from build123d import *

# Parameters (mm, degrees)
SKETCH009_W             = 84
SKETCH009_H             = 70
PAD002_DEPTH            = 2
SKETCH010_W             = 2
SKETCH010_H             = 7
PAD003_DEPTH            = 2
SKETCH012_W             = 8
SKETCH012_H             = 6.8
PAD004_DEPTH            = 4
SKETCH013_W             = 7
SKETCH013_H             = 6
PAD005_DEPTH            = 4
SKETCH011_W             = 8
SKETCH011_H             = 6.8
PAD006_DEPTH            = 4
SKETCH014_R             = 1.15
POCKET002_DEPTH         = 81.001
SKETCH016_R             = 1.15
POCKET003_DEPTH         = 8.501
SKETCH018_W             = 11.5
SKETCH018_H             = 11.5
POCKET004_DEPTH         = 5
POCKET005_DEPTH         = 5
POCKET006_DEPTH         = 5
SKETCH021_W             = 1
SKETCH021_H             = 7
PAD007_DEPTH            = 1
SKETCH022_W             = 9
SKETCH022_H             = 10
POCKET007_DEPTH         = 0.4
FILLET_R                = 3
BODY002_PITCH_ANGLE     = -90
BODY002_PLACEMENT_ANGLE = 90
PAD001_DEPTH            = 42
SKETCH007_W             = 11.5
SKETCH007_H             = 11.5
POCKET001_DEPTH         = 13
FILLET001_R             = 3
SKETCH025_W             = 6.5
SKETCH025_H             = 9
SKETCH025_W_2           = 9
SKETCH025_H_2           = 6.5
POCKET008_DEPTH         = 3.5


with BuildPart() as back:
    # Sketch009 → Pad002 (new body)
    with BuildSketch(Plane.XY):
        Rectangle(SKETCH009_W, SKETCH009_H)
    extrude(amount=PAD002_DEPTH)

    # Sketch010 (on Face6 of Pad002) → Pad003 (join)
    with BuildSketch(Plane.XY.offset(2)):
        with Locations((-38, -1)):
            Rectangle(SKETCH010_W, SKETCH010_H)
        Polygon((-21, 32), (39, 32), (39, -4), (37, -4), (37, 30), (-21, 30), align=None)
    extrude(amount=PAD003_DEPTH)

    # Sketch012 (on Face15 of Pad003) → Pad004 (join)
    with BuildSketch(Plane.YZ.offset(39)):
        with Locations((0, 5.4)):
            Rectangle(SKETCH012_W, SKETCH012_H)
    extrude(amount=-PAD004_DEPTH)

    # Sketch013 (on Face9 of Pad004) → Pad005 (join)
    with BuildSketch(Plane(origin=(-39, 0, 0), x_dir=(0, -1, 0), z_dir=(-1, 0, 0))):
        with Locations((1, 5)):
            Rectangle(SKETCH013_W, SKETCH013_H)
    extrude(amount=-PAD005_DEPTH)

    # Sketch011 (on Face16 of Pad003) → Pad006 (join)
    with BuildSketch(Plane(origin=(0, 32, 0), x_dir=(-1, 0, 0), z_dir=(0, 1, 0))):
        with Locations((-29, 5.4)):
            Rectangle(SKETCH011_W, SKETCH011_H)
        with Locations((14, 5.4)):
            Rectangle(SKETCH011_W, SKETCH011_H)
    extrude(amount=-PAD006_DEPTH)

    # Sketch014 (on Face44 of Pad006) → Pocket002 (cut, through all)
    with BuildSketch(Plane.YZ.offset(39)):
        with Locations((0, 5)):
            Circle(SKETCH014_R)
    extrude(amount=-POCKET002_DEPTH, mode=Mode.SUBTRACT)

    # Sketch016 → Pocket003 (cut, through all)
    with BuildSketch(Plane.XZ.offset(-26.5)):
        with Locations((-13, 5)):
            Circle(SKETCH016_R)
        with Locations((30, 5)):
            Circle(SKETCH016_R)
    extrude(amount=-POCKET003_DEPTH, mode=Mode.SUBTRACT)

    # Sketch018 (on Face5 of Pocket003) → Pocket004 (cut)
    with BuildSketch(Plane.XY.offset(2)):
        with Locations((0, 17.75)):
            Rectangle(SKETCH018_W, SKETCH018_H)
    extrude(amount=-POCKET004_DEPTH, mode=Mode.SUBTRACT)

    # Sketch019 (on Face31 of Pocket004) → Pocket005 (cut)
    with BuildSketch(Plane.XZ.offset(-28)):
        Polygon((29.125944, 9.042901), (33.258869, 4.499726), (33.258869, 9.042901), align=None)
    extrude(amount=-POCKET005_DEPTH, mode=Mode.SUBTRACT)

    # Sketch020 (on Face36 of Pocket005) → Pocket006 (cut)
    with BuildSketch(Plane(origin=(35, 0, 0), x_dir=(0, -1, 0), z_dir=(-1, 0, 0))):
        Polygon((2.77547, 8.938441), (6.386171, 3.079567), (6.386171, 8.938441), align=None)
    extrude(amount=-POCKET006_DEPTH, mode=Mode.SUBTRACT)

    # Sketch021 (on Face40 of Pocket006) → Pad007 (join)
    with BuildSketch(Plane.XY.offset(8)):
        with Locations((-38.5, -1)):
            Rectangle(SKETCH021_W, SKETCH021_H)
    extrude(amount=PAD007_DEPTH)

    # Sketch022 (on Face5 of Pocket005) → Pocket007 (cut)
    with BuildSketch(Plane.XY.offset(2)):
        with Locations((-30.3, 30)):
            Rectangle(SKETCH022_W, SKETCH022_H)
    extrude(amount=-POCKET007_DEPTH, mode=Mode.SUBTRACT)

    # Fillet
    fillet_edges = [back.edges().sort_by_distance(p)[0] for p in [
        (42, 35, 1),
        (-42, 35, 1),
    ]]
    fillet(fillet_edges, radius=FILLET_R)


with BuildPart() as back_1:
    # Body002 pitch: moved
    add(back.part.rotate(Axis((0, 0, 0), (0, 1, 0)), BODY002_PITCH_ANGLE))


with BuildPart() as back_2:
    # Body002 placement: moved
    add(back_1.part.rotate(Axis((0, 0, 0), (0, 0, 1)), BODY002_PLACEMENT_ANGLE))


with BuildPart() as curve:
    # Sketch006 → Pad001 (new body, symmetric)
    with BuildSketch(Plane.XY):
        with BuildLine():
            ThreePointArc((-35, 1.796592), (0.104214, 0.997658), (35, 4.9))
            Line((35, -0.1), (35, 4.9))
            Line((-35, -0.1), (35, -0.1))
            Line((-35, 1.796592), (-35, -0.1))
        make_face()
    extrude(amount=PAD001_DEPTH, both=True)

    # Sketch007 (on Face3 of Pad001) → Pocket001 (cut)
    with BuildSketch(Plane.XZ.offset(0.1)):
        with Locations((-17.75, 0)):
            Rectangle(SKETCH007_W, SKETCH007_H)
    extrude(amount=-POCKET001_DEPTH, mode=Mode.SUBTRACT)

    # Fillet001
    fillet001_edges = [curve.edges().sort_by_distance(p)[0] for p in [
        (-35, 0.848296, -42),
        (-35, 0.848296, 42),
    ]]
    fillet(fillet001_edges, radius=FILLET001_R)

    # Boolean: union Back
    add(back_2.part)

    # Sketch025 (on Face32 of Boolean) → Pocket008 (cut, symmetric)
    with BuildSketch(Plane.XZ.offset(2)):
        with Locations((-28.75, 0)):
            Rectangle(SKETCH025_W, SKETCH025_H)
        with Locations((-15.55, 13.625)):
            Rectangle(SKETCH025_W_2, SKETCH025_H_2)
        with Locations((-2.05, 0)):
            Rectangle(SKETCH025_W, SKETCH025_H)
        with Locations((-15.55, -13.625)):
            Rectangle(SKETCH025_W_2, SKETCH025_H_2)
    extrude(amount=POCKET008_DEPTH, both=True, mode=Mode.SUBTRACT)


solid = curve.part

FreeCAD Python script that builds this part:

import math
import FreeCAD as App
import Part
import Sketcher
Q = App.Units.Quantity


def edges_at(feature, points):
    """Names of the edges that pass closest to the given points."""
    edges = feature.Shape.Edges
    near = lambda p: min(range(len(edges)), key=lambda i: edges[i].distToShape(Part.Vertex(*p))[0])
    return sorted({f"Edge{near(p) + 1}" for p in points})


def add_polygon(sketch, points):
    """Adds a closed chain of lines whose ends are joined by coincident constraints."""
    first, n = sketch.GeometryCount, len(points)
    for a, b in zip(points, points[1:] + points[:1]):
        sketch.addGeometry(Part.LineSegment(App.Vector(*a, 0), App.Vector(*b, 0)), False)
    for i in range(n):
        sketch.addConstraint(Sketcher.Constraint("Coincident", first + i, 2, first + (i + 1) % n, 1))

doc = App.newDocument("Part")
body = doc.addObject("PartDesign::Body", "Body")

# Sketch on XY plane
sketch1 = body.newObject("Sketcher::SketchObject", "Sketch")
sketch1.AttachmentSupport = (doc.getObject("XY_Plane"), [""])
sketch1.MapMode = "FlatFace"
add_polygon(sketch1, [(-42, 35), (-42, -35), (42, -35), (42, 35)])  # lines 0-3
sketch1.addConstraint([
    Sketcher.Constraint("Vertical", 0),
    Sketcher.Constraint("Horizontal", 1),
    Sketcher.Constraint("Vertical", 2),
    Sketcher.Constraint("Horizontal", 3),
    Sketcher.Constraint("Symmetric", 0, 2, 2, 2, -1, 1),
    Sketcher.Constraint("DistanceX", 1, 1, 1, 2, Q("84 mm")),
    Sketcher.Constraint("DistanceY", 0, 2, 0, 1, Q("70 mm")),
])
pad1 = body.newObject("PartDesign::Pad", "Pad")
pad1.Profile = sketch1
pad1.Length = 2

# Sketch on XY plane
sketch2 = body.newObject("Sketcher::SketchObject", "Sketch001")
sketch2.AttachmentSupport = (doc.getObject("XY_Plane"), [""])
sketch2.MapMode = "FlatFace"
sketch2.AttachmentOffset = App.Placement(App.Vector(0, 0, 2), App.Rotation())
add_polygon(sketch2, [(-39, 2.5), (-39, -4.5), (-37, -4.5), (-37, 2.5)])  # lines 0-3
add_polygon(sketch2, [(39, 32), (-21, 32), (-21, 30), (37, 30), (37, -4), (39, -4)])  # lines 4-9
sketch2.addConstraint([
    Sketcher.Constraint("Vertical", 0),
    Sketcher.Constraint("Horizontal", 1),
    Sketcher.Constraint("Vertical", 2),
    Sketcher.Constraint("Horizontal", 3),
    Sketcher.Constraint("Horizontal", 4),
    Sketcher.Constraint("Vertical", 5),
    Sketcher.Constraint("Horizontal", 6),
    Sketcher.Constraint("Vertical", 7),
    Sketcher.Constraint("Horizontal", 8),
    Sketcher.Constraint("Vertical", 9),
    Sketcher.Constraint("Equal", 3, 8),
    Sketcher.Constraint("Equal", 8, 5),
    Sketcher.Constraint("DistanceX", 1, 1, 1, 2, Q("2 mm")),
    Sketcher.Constraint("DistanceX", 4, 2, 4, 1, Q("60 mm")),
    Sketcher.Constraint("DistanceY", 0, 2, 0, 1, Q("7 mm")),
    Sketcher.Constraint("DistanceY", 7, 2, 7, 1, Q("34 mm")),
    Sketcher.Constraint("DistanceX", 0, 2, -1, 1, Q("39 mm")),
    Sketcher.Constraint("DistanceX", 4, 2, -1, 1, Q("21 mm")),
    Sketcher.Constraint("DistanceY", -1, 1, 4, 2, Q("32 mm")),
    Sketcher.Constraint("DistanceY", 0, 2, -1, 1, Q("4.5 mm")),
])
pad2 = body.newObject("PartDesign::Pad", "Pad001")
pad2.Profile = sketch2
pad2.Length = 2

# Sketch on YZ plane
sketch3 = body.newObject("Sketcher::SketchObject", "Sketch002")
sketch3.AttachmentSupport = (doc.getObject("YZ_Plane"), [""])
sketch3.MapMode = "FlatFace"
sketch3.AttachmentOffset = App.Placement(App.Vector(0, 0, 39), App.Rotation())
add_polygon(sketch3, [(-4, 8.8), (-4, 2), (4, 2), (4, 8.8)])  # lines 0-3
sketch3.addConstraint([
    Sketcher.Constraint("Vertical", 0),
    Sketcher.Constraint("Horizontal", 1),
    Sketcher.Constraint("Vertical", 2),
    Sketcher.Constraint("Horizontal", 3),
    Sketcher.Constraint("DistanceX", 1, 1, 1, 2, Q("8 mm")),
    Sketcher.Constraint("DistanceY", 0, 2, 0, 1, Q("6.8 mm")),
    Sketcher.Constraint("DistanceX", 0, 2, -1, 1, Q("4 mm")),
    Sketcher.Constraint("DistanceY", -1, 1, 0, 2, Q("2 mm")),
])
pad3 = body.newObject("PartDesign::Pad", "Pad002")
pad3.Profile = sketch3
pad3.Length = 4
pad3.Reversed = True

# Sketch on YZ plane
sketch4 = body.newObject("Sketcher::SketchObject", "Sketch003")
sketch4.AttachmentSupport = (doc.getObject("YZ_Plane"), [""])
sketch4.MapMode = "FlatFace"
sketch4.AttachmentOffset = App.Placement(App.Vector(0, 0, -39), App.Rotation())
add_polygon(sketch4, [(2.5, 8), (2.5, 2), (-4.5, 2), (-4.5, 8)])  # lines 0-3
sketch4.addConstraint([
    Sketcher.Constraint("Vertical", 0),
    Sketcher.Constraint("Horizontal", 1),
    Sketcher.Constraint("Vertical", 2),
    Sketcher.Constraint("Horizontal", 3),
    Sketcher.Constraint("DistanceX", 1, 2, 1, 1, Q("7 mm")),
    Sketcher.Constraint("DistanceY", 0, 2, 0, 1, Q("6 mm")),
    Sketcher.Constraint("DistanceY", -1, 1, 0, 2, Q("2 mm")),
    Sketcher.Constraint("DistanceX", -1, 1, 0, 2, Q("2.5 mm")),
])
pad4 = body.newObject("PartDesign::Pad", "Pad003")
pad4.Profile = sketch4
pad4.Length = 4

# Sketch on XZ plane
sketch5 = body.newObject("Sketcher::SketchObject", "Sketch004")
sketch5.AttachmentSupport = (doc.getObject("XZ_Plane"), [""])
sketch5.MapMode = "FlatFace"
sketch5.AttachmentOffset = App.Placement(App.Vector(0, 0, -32), App.Rotation())
add_polygon(sketch5, [(33, 8.8), (33, 2), (25, 2), (25, 8.8)])  # lines 0-3
add_polygon(sketch5, [(-10, 8.8), (-10, 2), (-18, 2), (-18, 8.8)])  # lines 4-7
sketch5.addConstraint([
    Sketcher.Constraint("Vertical", 0),
    Sketcher.Constraint("Horizontal", 1),
    Sketcher.Constraint("Vertical", 2),
    Sketcher.Constraint("Horizontal", 3),
    Sketcher.Constraint("Vertical", 4),
    Sketcher.Constraint("Horizontal", 5),
    Sketcher.Constraint("Vertical", 6),
    Sketcher.Constraint("Horizontal", 7),
    Sketcher.Constraint("Horizontal", 1, 2, 4, 2),
    Sketcher.Constraint("Horizontal", 3, 2, 6, 2),
    Sketcher.Constraint("Equal", 3, 5),
    Sketcher.Constraint("DistanceX", 1, 2, 1, 1, Q("8 mm")),
    Sketcher.Constraint("DistanceY", 0, 2, 0, 1, Q("6.8 mm")),
    Sketcher.Constraint("DistanceX", -1, 1, 0, 2, Q("33 mm")),
    Sketcher.Constraint("DistanceY", -1, 1, 0, 2, Q("2 mm")),
    Sketcher.Constraint("DistanceX", 4, 2, -1, 1, Q("10 mm")),
])
pad5 = body.newObject("PartDesign::Pad", "Pad004")
pad5.Profile = sketch5
pad5.Length = 4

# Sketch on YZ plane
sketch6 = body.newObject("Sketcher::SketchObject", "Sketch005")
sketch6.AttachmentSupport = (doc.getObject("YZ_Plane"), [""])
sketch6.MapMode = "FlatFace"
sketch6.AttachmentOffset = App.Placement(App.Vector(0, 0, 39), App.Rotation())
sketch6.addGeometry(Part.Circle(App.Vector(0, 5, 0), App.Vector(0, 0, 1), 1.15), False)
sketch6.addConstraint([
    Sketcher.Constraint("PointOnObject", 0, 3, -2),
    Sketcher.Constraint("Diameter", 0, Q("2.3 mm")),
    Sketcher.Constraint("DistanceY", -1, 1, 0, 3, Q("5 mm")),
])
pocket1 = body.newObject("PartDesign::Pocket", "Pocket")
pocket1.Profile = sketch6
pocket1.Type = "ThroughAll"

# Sketch on XZ plane
sketch7 = body.newObject("Sketcher::SketchObject", "Sketch006")
sketch7.AttachmentSupport = (doc.getObject("XZ_Plane"), [""])
sketch7.MapMode = "FlatFace"
sketch7.AttachmentOffset = App.Placement(App.Vector(0, 0, -26.5), App.Rotation())
sketch7.addGeometry([
    Part.Circle(App.Vector(-13, 5, 0), App.Vector(0, 0, 1), 1.15),
    Part.Circle(App.Vector(30, 5, 0), App.Vector(0, 0, 1), 1.15),
], False)
sketch7.addConstraint([
    Sketcher.Constraint("Equal", 0, 1),
    Sketcher.Constraint("Horizontal", 0, 3, 1, 3),
    Sketcher.Constraint("Diameter", 0, Q("2.3 mm")),
    Sketcher.Constraint("DistanceX", 0, 3, -1, 1, Q("13 mm")),
    Sketcher.Constraint("DistanceY", -1, 1, 0, 3, Q("5 mm")),
    Sketcher.Constraint("DistanceX", -1, 1, 1, 3, Q("30 mm")),
])
pocket2 = body.newObject("PartDesign::Pocket", "Pocket001")
pocket2.Profile = sketch7
pocket2.Type = "ThroughAll"

# Sketch on XY plane
sketch8 = body.newObject("Sketcher::SketchObject", "Sketch007")
sketch8.AttachmentSupport = (doc.getObject("XY_Plane"), [""])
sketch8.MapMode = "FlatFace"
sketch8.AttachmentOffset = App.Placement(App.Vector(0, 0, 2), App.Rotation())
add_polygon(sketch8, [(-5.75, 23.5), (-5.75, 12), (5.75, 12), (5.75, 23.5)])  # lines 0-3
sketch8.addConstraint([
    Sketcher.Constraint("Vertical", 0),
    Sketcher.Constraint("Horizontal", 1),
    Sketcher.Constraint("Vertical", 2),
    Sketcher.Constraint("Horizontal", 3),
    Sketcher.Constraint("Equal", 3, 0),
    Sketcher.Constraint("DistanceX", 1, 1, 1, 2, Q("11.5 mm")),
    Sketcher.Constraint("DistanceY", -1, 1, 0, 2, Q("12 mm")),
    Sketcher.Constraint("DistanceX", 0, 2, -1, 1, Q("5.75 mm")),
])
pocket3 = body.newObject("PartDesign::Pocket", "Pocket002")
pocket3.Profile = sketch8
pocket3.Length = 5

# Sketch on XZ plane
sketch9 = body.newObject("Sketcher::SketchObject", "Sketch008")
sketch9.AttachmentSupport = (doc.getObject("XZ_Plane"), [""])
sketch9.MapMode = "FlatFace"
sketch9.AttachmentOffset = App.Placement(App.Vector(0, 0, -28), App.Rotation())
add_polygon(sketch9, [(29.125944, 9.042901), (33.258869, 4.499726), (33.258869, 9.042901)])  # lines 0-2
sketch9.addConstraint([
    Sketcher.Constraint("Vertical", 1),
    Sketcher.Constraint("Horizontal", 2),
    Sketcher.Constraint("DistanceY", -1, 1, 1, 2, Q("9.042901 mm")),
    Sketcher.Constraint("DistanceX", 2, 2, 2, 1, Q("4.132925 mm")),
    Sketcher.Constraint("DistanceY", 1, 1, 1, 2, Q("4.543175 mm")),
    Sketcher.Constraint("DistanceX", -1, 1, 0, 2, Q("33.258869 mm")),
])
pocket4 = body.newObject("PartDesign::Pocket", "Pocket003")
pocket4.Profile = sketch9
pocket4.Length = 5

# Sketch on YZ plane
sketch10 = body.newObject("Sketcher::SketchObject", "Sketch009")
sketch10.AttachmentSupport = (doc.getObject("YZ_Plane"), [""])
sketch10.MapMode = "FlatFace"
sketch10.AttachmentOffset = App.Placement(App.Vector(0, 0, 35), App.Rotation())
add_polygon(sketch10, [(-2.77547, 8.938441), (-6.386171, 3.079567), (-6.386171, 8.938441)])  # lines 0-2
sketch10.addConstraint([
    Sketcher.Constraint("Vertical", 1),
    Sketcher.Constraint("Horizontal", 2),
    Sketcher.Constraint("DistanceX", 2, 1, 2, 2, Q("3.610701 mm")),
    Sketcher.Constraint("Distance", 0, Q("6.882119 mm")),
    Sketcher.Constraint("DistanceX", 0, 2, -1, 1, Q("6.386171 mm")),
    Sketcher.Constraint("DistanceY", -1, 1, 1, 2, Q("8.938441 mm")),
])
pocket5 = body.newObject("PartDesign::Pocket", "Pocket004")
pocket5.Profile = sketch10
pocket5.Length = 5
pocket5.Reversed = True

# Sketch on XY plane
sketch11 = body.newObject("Sketcher::SketchObject", "Sketch010")
sketch11.AttachmentSupport = (doc.getObject("XY_Plane"), [""])
sketch11.MapMode = "FlatFace"
sketch11.AttachmentOffset = App.Placement(App.Vector(0, 0, 8), App.Rotation())
add_polygon(sketch11, [(-39, 2.5), (-39, -4.5), (-38, -4.5), (-38, 2.5)])  # lines 0-3
sketch11.addConstraint([
    Sketcher.Constraint("Vertical", 0),
    Sketcher.Constraint("Horizontal", 1),
    Sketcher.Constraint("Vertical", 2),
    Sketcher.Constraint("Horizontal", 3),
    Sketcher.Constraint("DistanceX", 1, 1, 1, 2, Q("1 mm")),
    Sketcher.Constraint("DistanceY", 0, 2, 0, 1, Q("7 mm")),
    Sketcher.Constraint("DistanceX", 0, 2, -1, 1, Q("39 mm")),
    Sketcher.Constraint("DistanceY", 0, 2, -1, 1, Q("4.5 mm")),
])
pad6 = body.newObject("PartDesign::Pad", "Pad005")
pad6.Profile = sketch11
pad6.Length = 1

# Sketch on XY plane
sketch12 = body.newObject("Sketcher::SketchObject", "Sketch011")
sketch12.AttachmentSupport = (doc.getObject("XY_Plane"), [""])
sketch12.MapMode = "FlatFace"
sketch12.AttachmentOffset = App.Placement(App.Vector(0, 0, 2), App.Rotation())
add_polygon(sketch12, [(-34.8, 35), (-34.8, 25), (-25.8, 25), (-25.8, 35)])  # lines 0-3
sketch12.addConstraint([
    Sketcher.Constraint("Vertical", 0),
    Sketcher.Constraint("Horizontal", 1),
    Sketcher.Constraint("Vertical", 2),
    Sketcher.Constraint("Horizontal", 3),
    Sketcher.Constraint("DistanceX", 1, 1, 1, 2, Q("9 mm")),
    Sketcher.Constraint("DistanceY", 0, 2, 0, 1, Q("10 mm")),
    Sketcher.Constraint("DistanceY", -1, 1, 0, 2, Q("25 mm")),
    Sketcher.Constraint("DistanceX", 0, 2, -1, 1, Q("34.8 mm")),
])
pocket6 = body.newObject("PartDesign::Pocket", "Pocket005")
pocket6.Profile = sketch12
pocket6.Length = 0.4
doc.recompute()

fillet = body.newObject("PartDesign::Fillet", "Fillet")
fillet.Base = (pocket6, edges_at(pocket6, [(42, 35, 1), (-42, 35, 1)]))
fillet.Radius = 3
body2 = doc.addObject("PartDesign::Body", "Body001")
doc.recompute()

body.Placement = App.Placement(App.Vector(0, 0, 0), App.Rotation(App.Vector(0, 1, 0), 270))
boolean = body2.newObject("PartDesign::Boolean", "Boolean")
boolean.Type = "Fuse"
boolean.addObjects([body])
body3 = doc.addObject("PartDesign::Body", "Body002")
doc.recompute()

body2.Placement = App.Placement(App.Vector(0, 0, 0), App.Rotation(App.Vector(0, 0, 1), 90))
boolean2 = body3.newObject("PartDesign::Boolean", "Boolean001")
boolean2.Type = "Fuse"
boolean2.addObjects([body2])
body4 = doc.addObject("PartDesign::Body", "Body003")

# Sketch on XY plane
sketch13 = body4.newObject("Sketcher::SketchObject", "Sketch012")
sketch13.AttachmentSupport = (doc.getObject("XY_Plane003"), [""])
sketch13.MapMode = "FlatFace"
sketch13.addGeometry([
    Part.ArcOfCircle(Part.Circle(App.Vector(-11.499999, 262.740534, 0), App.Vector(0, 0, 1), 261.999983), math.radians(-95.146042), math.radians(-79.776935)),
    Part.LineSegment(App.Vector(-35, 1.796592, 0), App.Vector(-35, -0.1, 0)),
    Part.LineSegment(App.Vector(-35, -0.1, 0), App.Vector(35, -0.1, 0)),
    Part.LineSegment(App.Vector(35, -0.1, 0), App.Vector(35, 4.9, 0)),
], False)
sketch13.addConstraint([
    Sketcher.Constraint("Coincident", 0, 1, 1, 1),
    Sketcher.Constraint("Coincident", 1, 2, 2, 1),
    Sketcher.Constraint("Coincident", 2, 2, 3, 1),
    Sketcher.Constraint("Coincident", 3, 2, 0, 2),
    Sketcher.Constraint("Vertical", 1),
    Sketcher.Constraint("Horizontal", 2),
    Sketcher.Constraint("Vertical", 3),
    Sketcher.Constraint("DistanceX", 2, 1, 2, 2, Q("70 mm")),
    Sketcher.Constraint("DistanceY", 3, 1, 3, 2, Q("5 mm")),
    Sketcher.Constraint("DistanceX", 1, 2, -1, 1, Q("35 mm")),
    Sketcher.Constraint("DistanceX", 0, 3, -1, 1, Q("11.499999 mm")),
    Sketcher.Constraint("DistanceY", 1, 2, -1, 1, Q("0.1 mm")),
    Sketcher.Constraint("Radius", 0, Q("261.999983 mm")),
])
pad7 = body4.newObject("PartDesign::Pad", "Pad006")
pad7.Profile = sketch13
pad7.Length = 84
pad7.Midplane = True

# Sketch on XZ plane
sketch14 = body4.newObject("Sketcher::SketchObject", "Sketch013")
sketch14.AttachmentSupport = (doc.getObject("XZ_Plane003"), [""])
sketch14.MapMode = "FlatFace"
sketch14.AttachmentOffset = App.Placement(App.Vector(0, 0, 0.1), App.Rotation())
add_polygon(sketch14, [(-23.5, 5.75), (-23.5, -5.75), (-12, -5.75), (-12, 5.75)])  # lines 0-3
sketch14.addConstraint([
    Sketcher.Constraint("Vertical", 0),
    Sketcher.Constraint("Horizontal", 1),
    Sketcher.Constraint("Vertical", 2),
    Sketcher.Constraint("Horizontal", 3),
    Sketcher.Constraint("Equal", 3, 0),
    Sketcher.Constraint("DistanceX", 1, 1, 1, 2, Q("11.5 mm")),
    Sketcher.Constraint("DistanceX", 1, 2, -1, 1, Q("12 mm")),
    Sketcher.Constraint("DistanceY", 0, 2, -1, 1, Q("5.75 mm")),
])
pocket7 = body4.newObject("PartDesign::Pocket", "Pocket006")
pocket7.Profile = sketch14
pocket7.Length = 13
doc.recompute()

fillet2 = body4.newObject("PartDesign::Fillet", "Fillet001")
fillet2.Base = (pocket7, edges_at(pocket7, [(-35, 0.848, -42), (-35, 0.848, 42)]))
fillet2.Radius = 3
doc.recompute()

boolean3 = body4.newObject("PartDesign::Boolean", "Boolean002")
boolean3.Type = "Fuse"
boolean3.addObjects([body3])

# Sketch on XZ plane
sketch15 = body4.newObject("Sketcher::SketchObject", "Sketch014")
sketch15.AttachmentSupport = (doc.getObject("XZ_Plane003"), [""])
sketch15.MapMode = "FlatFace"
sketch15.AttachmentOffset = App.Placement(App.Vector(0, 0, 2), App.Rotation())
add_polygon(sketch15, [(-32, 4.5), (-32, -4.5), (-25.5, -4.5), (-25.5, 4.5)])  # lines 0-3
add_polygon(sketch15, [(-20.05, 16.875), (-20.05, 10.375), (-11.05, 10.375), (-11.05, 16.875)])  # lines 4-7
add_polygon(sketch15, [(-5.3, 4.5), (-5.3, -4.5), (1.2, -4.5), (1.2, 4.5)])  # lines 8-11
add_polygon(sketch15, [(-20.05, -10.375), (-20.05, -16.875), (-11.05, -16.875), (-11.05, -10.375)])  # lines 12-15
sketch15.addConstraint([
    Sketcher.Constraint("Vertical", 0),
    Sketcher.Constraint("Horizontal", 1),
    Sketcher.Constraint("Vertical", 2),
    Sketcher.Constraint("Horizontal", 3),
    Sketcher.Constraint("Vertical", 4),
    Sketcher.Constraint("Horizontal", 5),
    Sketcher.Constraint("Vertical", 6),
    Sketcher.Constraint("Horizontal", 7),
    Sketcher.Constraint("Vertical", 8),
    Sketcher.Constraint("Horizontal", 9),
    Sketcher.Constraint("Vertical", 10),
    Sketcher.Constraint("Horizontal", 11),
    Sketcher.Constraint("Vertical", 12),
    Sketcher.Constraint("Horizontal", 13),
    Sketcher.Constraint("Vertical", 14),
    Sketcher.Constraint("Horizontal", 15),
    Sketcher.Constraint("Symmetric", 7, 2, 12, 2, -1),
    Sketcher.Constraint("Symmetric", 5, 2, 14, 2, -1),
    Sketcher.Constraint("Horizontal", 1, 2, 8, 2),
    Sketcher.Constraint("Horizontal", 3, 2, 10, 2),
    Sketcher.Constraint("Equal", 3, 9),
    Sketcher.Constraint("Equal", 15, 0),
    Sketcher.Constraint("Equal", 11, 4),
    Sketcher.Constraint("DistanceX", 5, 1, 5, 2, Q("9 mm")),
    Sketcher.Constraint("DistanceX", 1, 1, 1, 2, Q("6.5 mm")),
    Sketcher.Constraint("DistanceX", 0, 2, -1, 1, Q("32 mm")),
    Sketcher.Constraint("DistanceY", 0, 2, -1, 1, Q("4.5 mm")),
    Sketcher.Constraint("DistanceX", 8, 2, -1, 1, Q("5.3 mm")),
    Sketcher.Constraint("DistanceX", 4, 2, -1, 1, Q("20.05 mm")),
    Sketcher.Constraint("DistanceY", -1, 1, 4, 2, Q("10.375 mm")),
])
pocket8 = body4.newObject("PartDesign::Pocket", "Pocket007")
pocket8.Profile = sketch15
pocket8.Length = 7
pocket8.Midplane = True

doc.recompute()
